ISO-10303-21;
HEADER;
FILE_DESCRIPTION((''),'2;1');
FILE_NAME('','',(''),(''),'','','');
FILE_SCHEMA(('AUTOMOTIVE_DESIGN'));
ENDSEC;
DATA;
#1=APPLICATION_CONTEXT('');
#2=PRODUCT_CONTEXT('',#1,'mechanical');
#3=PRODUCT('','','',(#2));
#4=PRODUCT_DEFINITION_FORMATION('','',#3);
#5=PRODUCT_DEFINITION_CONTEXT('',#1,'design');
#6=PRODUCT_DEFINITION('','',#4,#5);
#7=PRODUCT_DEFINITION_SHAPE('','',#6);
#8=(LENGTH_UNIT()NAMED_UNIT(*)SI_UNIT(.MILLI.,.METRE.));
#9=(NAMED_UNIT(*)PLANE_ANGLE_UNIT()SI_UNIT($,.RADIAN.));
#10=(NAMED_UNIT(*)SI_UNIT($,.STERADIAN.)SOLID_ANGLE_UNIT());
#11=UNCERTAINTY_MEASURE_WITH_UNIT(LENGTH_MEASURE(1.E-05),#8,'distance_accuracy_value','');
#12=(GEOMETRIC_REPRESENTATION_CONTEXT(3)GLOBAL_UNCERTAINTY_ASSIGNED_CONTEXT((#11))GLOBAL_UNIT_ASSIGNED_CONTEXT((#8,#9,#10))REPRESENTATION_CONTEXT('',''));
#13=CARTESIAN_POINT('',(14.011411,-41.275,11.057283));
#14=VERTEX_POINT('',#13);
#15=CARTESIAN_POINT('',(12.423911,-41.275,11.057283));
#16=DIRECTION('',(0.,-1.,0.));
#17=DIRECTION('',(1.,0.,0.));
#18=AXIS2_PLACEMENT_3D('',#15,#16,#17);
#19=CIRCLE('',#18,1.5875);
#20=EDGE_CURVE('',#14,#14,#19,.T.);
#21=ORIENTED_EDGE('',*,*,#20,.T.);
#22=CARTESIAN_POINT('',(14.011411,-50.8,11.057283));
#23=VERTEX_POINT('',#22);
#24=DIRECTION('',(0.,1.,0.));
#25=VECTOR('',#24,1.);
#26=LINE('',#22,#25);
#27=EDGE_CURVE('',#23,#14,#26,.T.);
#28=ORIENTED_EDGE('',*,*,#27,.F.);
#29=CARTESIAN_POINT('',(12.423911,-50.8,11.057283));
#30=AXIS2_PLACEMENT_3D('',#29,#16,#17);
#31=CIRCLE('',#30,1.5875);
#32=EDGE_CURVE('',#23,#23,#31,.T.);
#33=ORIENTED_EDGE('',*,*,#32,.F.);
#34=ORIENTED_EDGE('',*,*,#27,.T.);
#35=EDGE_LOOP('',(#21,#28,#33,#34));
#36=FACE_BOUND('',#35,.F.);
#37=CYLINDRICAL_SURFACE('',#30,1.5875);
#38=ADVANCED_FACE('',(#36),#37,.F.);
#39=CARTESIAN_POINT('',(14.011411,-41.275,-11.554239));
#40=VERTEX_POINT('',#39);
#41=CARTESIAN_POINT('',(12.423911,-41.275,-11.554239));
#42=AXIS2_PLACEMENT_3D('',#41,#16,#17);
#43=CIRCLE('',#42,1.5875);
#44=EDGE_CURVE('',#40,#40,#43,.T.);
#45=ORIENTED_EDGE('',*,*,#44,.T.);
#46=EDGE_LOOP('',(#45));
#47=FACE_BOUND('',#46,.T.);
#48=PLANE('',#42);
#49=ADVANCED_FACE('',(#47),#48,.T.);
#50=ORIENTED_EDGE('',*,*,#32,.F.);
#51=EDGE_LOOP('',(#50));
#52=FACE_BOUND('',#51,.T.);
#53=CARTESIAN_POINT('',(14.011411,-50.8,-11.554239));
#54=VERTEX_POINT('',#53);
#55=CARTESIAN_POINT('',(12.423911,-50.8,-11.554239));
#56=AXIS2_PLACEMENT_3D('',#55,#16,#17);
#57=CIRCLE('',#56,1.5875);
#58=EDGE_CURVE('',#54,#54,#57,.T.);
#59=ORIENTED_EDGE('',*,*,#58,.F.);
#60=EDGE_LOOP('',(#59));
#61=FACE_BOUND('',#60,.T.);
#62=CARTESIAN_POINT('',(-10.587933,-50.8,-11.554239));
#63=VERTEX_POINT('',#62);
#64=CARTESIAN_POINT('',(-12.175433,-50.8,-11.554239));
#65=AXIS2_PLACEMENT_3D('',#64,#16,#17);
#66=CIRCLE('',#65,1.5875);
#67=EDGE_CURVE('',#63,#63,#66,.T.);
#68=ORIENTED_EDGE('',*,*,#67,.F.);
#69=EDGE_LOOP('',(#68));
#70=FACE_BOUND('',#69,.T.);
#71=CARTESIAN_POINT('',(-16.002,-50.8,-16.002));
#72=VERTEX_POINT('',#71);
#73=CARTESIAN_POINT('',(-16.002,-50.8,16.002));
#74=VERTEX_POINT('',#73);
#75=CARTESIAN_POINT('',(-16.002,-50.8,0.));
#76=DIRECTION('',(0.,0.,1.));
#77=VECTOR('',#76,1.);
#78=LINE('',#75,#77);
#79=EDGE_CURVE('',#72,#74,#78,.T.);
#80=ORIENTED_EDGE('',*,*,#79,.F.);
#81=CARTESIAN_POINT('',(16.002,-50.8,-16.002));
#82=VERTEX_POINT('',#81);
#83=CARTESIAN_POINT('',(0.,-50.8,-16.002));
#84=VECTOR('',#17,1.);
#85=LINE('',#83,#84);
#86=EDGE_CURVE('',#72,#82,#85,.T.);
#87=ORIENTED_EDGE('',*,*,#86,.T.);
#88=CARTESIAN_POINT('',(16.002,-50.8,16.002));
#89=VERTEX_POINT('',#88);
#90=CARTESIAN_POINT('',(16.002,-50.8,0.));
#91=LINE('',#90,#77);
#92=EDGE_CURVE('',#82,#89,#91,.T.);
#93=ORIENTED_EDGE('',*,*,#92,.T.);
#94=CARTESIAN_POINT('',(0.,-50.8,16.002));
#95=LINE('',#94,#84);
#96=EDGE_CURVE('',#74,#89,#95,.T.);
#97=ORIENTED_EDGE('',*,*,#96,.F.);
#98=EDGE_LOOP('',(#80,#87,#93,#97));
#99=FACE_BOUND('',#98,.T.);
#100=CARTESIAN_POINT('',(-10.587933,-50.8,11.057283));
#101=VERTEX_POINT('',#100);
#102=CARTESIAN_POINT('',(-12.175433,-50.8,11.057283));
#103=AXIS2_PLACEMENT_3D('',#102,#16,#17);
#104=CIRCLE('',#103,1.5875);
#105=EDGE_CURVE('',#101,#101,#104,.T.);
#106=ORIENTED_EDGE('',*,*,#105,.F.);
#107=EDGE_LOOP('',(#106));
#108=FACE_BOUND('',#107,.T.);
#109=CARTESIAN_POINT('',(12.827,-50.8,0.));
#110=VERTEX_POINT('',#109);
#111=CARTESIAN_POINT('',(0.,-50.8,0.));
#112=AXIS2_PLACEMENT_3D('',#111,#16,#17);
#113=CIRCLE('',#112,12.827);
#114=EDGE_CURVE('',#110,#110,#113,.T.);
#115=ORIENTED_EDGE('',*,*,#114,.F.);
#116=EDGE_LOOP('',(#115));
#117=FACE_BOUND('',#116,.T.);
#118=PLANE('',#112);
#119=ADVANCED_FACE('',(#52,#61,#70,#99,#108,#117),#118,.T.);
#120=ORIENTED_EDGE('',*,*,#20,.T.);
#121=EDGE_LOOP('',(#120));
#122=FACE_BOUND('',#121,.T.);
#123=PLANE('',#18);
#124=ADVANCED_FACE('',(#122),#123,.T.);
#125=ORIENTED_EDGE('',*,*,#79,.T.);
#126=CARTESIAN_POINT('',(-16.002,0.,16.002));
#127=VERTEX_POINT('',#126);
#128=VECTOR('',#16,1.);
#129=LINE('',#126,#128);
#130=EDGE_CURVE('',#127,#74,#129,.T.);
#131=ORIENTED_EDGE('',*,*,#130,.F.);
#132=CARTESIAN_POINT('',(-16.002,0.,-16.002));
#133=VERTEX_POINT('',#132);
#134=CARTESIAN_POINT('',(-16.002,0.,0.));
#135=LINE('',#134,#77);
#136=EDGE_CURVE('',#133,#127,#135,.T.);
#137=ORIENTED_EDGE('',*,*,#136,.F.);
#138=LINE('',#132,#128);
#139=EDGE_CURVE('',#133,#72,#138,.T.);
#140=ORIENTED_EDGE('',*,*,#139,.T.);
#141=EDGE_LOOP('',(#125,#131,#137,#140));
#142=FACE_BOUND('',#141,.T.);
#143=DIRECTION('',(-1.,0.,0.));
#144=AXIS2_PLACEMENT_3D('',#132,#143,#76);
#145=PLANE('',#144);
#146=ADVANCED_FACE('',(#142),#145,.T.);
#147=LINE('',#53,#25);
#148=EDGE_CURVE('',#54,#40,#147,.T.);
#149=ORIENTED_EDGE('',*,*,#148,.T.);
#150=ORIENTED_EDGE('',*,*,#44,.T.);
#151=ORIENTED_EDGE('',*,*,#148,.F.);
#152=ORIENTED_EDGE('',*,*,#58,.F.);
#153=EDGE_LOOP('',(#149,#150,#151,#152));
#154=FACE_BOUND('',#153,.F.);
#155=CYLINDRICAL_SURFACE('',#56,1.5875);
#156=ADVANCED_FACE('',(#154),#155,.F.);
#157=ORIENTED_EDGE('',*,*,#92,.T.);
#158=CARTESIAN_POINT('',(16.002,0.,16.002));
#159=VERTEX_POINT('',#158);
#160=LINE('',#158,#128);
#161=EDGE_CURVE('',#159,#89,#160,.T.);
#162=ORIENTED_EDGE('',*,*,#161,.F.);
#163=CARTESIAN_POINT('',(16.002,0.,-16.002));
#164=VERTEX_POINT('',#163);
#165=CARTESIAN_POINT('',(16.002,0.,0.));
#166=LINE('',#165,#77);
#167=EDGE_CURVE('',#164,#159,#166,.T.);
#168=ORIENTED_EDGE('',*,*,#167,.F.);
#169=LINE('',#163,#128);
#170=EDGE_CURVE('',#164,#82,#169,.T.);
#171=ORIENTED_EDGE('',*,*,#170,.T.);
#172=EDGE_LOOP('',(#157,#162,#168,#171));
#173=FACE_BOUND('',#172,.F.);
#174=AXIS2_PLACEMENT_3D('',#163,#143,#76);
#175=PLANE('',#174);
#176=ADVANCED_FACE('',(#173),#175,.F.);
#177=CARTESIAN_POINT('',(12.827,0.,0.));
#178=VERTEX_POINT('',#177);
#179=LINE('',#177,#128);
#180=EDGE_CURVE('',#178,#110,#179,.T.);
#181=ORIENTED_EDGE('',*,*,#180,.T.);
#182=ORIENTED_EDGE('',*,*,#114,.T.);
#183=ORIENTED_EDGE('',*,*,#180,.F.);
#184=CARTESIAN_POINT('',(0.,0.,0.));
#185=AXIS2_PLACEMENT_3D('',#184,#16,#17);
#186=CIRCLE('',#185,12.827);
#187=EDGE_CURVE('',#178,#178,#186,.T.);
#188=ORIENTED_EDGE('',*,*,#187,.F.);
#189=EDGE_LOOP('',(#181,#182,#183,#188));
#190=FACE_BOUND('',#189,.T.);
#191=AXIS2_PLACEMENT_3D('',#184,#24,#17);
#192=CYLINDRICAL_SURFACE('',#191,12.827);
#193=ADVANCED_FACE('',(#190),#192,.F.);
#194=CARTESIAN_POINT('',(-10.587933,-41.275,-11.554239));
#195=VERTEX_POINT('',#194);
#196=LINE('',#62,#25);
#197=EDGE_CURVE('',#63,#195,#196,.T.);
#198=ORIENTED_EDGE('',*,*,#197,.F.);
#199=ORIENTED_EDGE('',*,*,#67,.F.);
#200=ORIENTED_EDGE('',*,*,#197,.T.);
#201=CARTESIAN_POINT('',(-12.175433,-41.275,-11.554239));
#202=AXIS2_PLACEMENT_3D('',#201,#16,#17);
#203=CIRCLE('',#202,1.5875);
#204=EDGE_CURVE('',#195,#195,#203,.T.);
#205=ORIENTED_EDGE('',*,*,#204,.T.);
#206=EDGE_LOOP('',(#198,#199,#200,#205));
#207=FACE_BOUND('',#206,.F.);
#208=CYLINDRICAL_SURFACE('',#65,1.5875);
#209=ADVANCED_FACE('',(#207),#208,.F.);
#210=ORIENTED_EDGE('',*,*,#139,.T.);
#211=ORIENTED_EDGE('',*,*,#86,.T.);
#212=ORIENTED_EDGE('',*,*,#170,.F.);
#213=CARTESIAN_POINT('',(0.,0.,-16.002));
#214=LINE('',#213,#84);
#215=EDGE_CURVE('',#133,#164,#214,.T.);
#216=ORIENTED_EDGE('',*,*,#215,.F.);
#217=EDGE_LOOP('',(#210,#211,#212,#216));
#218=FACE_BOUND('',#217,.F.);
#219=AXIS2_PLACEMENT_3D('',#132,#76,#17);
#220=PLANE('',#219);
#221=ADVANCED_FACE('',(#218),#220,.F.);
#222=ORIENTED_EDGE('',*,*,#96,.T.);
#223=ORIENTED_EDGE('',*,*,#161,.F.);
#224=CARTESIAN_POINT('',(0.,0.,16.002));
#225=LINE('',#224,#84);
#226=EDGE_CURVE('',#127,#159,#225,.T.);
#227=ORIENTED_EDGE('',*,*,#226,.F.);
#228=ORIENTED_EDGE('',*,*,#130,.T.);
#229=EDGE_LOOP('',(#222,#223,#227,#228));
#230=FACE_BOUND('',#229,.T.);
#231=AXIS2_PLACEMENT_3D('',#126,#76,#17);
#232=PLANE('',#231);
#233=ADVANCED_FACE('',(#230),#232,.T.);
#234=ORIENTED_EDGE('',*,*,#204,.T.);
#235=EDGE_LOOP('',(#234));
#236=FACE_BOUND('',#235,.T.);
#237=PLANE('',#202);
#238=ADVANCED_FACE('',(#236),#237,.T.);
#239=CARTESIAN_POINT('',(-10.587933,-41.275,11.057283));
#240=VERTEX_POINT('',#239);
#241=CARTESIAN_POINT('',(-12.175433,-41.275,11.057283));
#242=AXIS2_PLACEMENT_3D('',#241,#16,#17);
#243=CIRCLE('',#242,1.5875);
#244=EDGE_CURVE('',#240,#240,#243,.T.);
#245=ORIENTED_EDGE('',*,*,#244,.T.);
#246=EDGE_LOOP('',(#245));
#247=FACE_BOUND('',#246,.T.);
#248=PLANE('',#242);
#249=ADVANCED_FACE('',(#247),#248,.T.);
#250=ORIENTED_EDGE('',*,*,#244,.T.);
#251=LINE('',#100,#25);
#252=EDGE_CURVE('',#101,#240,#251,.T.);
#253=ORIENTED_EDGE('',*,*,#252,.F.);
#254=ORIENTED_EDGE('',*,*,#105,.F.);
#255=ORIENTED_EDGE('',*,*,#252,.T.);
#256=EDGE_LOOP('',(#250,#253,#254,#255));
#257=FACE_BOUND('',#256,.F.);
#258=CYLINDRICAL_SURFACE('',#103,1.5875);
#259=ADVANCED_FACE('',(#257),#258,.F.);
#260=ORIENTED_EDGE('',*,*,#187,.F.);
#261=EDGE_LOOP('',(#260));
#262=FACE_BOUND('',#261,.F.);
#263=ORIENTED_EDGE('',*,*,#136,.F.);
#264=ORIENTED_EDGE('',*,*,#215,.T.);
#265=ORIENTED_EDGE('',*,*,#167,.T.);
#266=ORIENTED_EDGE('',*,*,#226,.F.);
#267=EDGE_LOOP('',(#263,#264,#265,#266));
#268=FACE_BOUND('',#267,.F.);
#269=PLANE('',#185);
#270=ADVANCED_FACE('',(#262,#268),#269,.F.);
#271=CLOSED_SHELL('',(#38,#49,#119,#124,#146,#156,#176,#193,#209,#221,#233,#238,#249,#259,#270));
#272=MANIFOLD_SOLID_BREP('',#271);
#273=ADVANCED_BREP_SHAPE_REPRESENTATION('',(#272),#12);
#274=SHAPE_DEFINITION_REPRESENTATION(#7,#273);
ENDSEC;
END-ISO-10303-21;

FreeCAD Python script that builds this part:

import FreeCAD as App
import Part
import Sketcher

V = App.Vector
Q = App.Units.Quantity


def add_polygon(sketch, points):
    """Adds a closed chain of lines whose ends are joined by coincident constraints."""
    first, n = sketch.GeometryCount, len(points)
    for a, b in zip(points, points[1:] + points[:1]):
        sketch.addGeometry(Part.LineSegment(App.Vector(*a, 0), App.Vector(*b, 0)), False)
    for i in range(n):
        sketch.addConstraint(Sketcher.Constraint("Coincident", first + i, 2, first + (i + 1) % n, 1))

doc = App.newDocument("Part")
body = doc.addObject("PartDesign::Body", "Body")

sketch1 = body.newObject("Sketcher::SketchObject", "Sketch")
sketch1.AttachmentSupport = (doc.getObject("XZ_Plane"), [""])
sketch1.MapMode = "FlatFace"
add_polygon(sketch1, [(-16, 16), (-16, -16), (16, -16), (16, 16)])
sketch1.addGeometry(Part.Circle(V(0, 0, 0), V(0, 0, 1), 13), False)
sketch1.addConstraint([
    Sketcher.Constraint("Vertical", 0),
    Sketcher.Constraint("Horizontal", 1),
    Sketcher.Constraint("Vertical", 2),
    Sketcher.Constraint("Horizontal", 3),
    Sketcher.Constraint("Coincident", 4, 3, -1, 1),
    Sketcher.Constraint("Symmetric", 0, 2, 2, 2, -1, 1),
    Sketcher.Constraint("Equal", 3, 0),
    Sketcher.Constraint("Diameter", 4, Q("1.01 in")),
    Sketcher.Constraint("DistanceX", 1, 1, 1, 2, Q("1.26 in")),
])
pad1 = body.newObject("PartDesign::Pad", "Pad")
pad1.Profile = sketch1
pad1.Length = Q("2 in")

sketch2 = body.newObject("Sketcher::SketchObject", "Sketch001")
sketch2.AttachmentSupport = (doc.getObject("XZ_Plane"), [""])
sketch2.MapMode = "FlatFace"
sketch2.AttachmentOffset = App.Placement(V(0, 0, 2 * 25.4), App.Rotation())
sketch2.addGeometry([
    Part.Circle(V(-12.2, 11.1, 0), V(0, 0, 1), 1.6),
    Part.Circle(V(12.4, 11.1, 0), V(0, 0, 1), 1.6),
    Part.Circle(V(12.4, -11.6, 0), V(0, 0, 1), 1.6),
    Part.Circle(V(-12.2, -11.6, 0), V(0, 0, 1), 1.6),
], False)
sketch2.addConstraint([
    Sketcher.Constraint("Equal", 0, 1),
    Sketcher.Constraint("Equal", 1, 2),
    Sketcher.Constraint("Equal", 2, 3),
    Sketcher.Constraint("Horizontal", 0, 3, 1, 3),
    Sketcher.Constraint("Horizontal", 2, 3, 3, 3),
    Sketcher.Constraint("Vertical", 1, 3, 2, 3),
    Sketcher.Constraint("Vertical", 0, 3, 3, 3),
    Sketcher.Constraint("Diameter", 0, Q("0.125 in")),
    Sketcher.Constraint("DistanceX", -1, 1, 1, 3, 12.423911),
    Sketcher.Constraint("DistanceY", 2, 3, -1, 1, 11.554239),
    Sketcher.Constraint("DistanceX", 0, 3, -1, 1, 12.175433),
    Sketcher.Constraint("DistanceY", -1, 1, 0, 3, 11.057283),
])
pocket1 = body.newObject("PartDesign::Pocket", "Pocket")
pocket1.Profile = sketch2
pocket1.Length = Q("0.375 in")

doc.recompute()
